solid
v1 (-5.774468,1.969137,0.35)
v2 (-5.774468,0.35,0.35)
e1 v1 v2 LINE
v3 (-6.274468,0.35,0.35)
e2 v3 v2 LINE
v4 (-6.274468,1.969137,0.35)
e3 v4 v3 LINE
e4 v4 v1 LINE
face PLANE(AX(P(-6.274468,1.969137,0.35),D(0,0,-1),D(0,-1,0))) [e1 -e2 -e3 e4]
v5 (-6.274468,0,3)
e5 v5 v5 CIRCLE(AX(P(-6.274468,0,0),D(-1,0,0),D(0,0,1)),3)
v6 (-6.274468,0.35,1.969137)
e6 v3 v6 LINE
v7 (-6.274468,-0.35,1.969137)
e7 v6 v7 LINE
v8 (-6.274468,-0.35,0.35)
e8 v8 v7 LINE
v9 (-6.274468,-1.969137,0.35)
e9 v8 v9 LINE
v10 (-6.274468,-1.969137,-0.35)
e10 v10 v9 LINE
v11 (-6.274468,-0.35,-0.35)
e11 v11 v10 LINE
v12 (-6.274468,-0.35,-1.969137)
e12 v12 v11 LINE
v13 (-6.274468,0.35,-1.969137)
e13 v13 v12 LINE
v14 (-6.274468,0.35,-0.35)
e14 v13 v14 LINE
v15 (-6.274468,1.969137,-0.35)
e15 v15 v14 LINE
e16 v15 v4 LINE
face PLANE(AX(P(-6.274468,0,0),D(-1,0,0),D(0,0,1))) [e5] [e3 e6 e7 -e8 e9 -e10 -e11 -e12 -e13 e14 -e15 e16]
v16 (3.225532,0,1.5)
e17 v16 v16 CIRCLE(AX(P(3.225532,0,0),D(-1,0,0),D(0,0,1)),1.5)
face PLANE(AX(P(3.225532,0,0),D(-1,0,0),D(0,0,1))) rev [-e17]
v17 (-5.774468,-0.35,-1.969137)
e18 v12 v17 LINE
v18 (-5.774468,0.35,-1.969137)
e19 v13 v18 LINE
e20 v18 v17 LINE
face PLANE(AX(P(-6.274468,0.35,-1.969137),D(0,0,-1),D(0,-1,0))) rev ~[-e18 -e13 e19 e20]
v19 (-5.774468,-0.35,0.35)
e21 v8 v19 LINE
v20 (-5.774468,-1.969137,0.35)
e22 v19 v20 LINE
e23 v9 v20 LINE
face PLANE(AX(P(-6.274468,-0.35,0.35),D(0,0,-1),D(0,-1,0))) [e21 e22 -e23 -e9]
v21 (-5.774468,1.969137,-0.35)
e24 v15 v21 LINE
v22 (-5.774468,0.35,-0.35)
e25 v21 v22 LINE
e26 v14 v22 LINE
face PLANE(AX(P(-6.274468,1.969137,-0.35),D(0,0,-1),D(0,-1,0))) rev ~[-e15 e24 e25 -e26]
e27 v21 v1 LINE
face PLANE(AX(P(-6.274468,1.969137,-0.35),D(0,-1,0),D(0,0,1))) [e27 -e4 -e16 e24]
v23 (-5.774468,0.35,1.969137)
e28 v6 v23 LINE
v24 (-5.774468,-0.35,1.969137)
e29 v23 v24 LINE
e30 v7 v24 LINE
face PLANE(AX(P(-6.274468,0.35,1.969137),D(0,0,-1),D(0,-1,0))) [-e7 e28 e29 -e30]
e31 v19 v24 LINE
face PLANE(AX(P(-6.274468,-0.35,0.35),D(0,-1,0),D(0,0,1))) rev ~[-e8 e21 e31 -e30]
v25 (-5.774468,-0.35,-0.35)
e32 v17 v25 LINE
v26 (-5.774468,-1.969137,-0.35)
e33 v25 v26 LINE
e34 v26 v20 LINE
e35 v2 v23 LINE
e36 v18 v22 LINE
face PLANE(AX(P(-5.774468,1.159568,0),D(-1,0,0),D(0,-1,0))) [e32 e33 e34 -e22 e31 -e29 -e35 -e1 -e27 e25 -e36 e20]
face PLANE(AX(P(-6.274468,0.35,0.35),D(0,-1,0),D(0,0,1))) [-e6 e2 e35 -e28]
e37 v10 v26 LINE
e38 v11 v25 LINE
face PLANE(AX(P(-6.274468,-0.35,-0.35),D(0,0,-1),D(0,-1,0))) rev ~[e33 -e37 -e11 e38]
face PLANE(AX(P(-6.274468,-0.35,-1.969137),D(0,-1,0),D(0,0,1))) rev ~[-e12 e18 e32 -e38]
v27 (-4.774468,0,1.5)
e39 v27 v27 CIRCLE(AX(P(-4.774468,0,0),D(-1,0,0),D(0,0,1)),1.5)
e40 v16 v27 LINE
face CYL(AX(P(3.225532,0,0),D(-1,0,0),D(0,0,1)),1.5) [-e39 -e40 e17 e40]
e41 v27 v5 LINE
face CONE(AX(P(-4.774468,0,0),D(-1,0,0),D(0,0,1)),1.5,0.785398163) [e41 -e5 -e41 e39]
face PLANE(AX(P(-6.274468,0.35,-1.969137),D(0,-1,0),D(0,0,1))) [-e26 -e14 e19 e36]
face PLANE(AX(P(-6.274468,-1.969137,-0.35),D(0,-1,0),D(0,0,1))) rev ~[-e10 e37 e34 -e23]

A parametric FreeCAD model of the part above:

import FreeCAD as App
import Part
import Sketcher
Q = App.Units.Quantity


def add_polygon(sketch, points):
    """Adds a closed chain of lines whose ends are joined by coincident constraints."""
    first, n = sketch.GeometryCount, len(points)
    for a, b in zip(points, points[1:] + points[:1]):
        sketch.addGeometry(Part.LineSegment(App.Vector(*a, 0), App.Vector(*b, 0)), False)
    for i in range(n):
        sketch.addConstraint(Sketcher.Constraint("Coincident", first + i, 2, first + (i + 1) % n, 1))

doc = App.newDocument("Part")
params = doc.addObject("Spreadsheet::Sheet", "Params")
for row, (alias, value) in enumerate([
    ("sketch1_width", "8 mm"),
    ("sketch1_height", "3 mm"),
    ("sketch1_width2", "9.5 mm"),
    ("revolution_angle", "360 deg"),
    ("sketch2_width", "0.7 mm"),
    ("pocket1_length", "0.5 mm"),
], start=1):
    params.set(f"A{row}", alias)
    params.set(f"B{row}", "=" + value)
    params.setAlias(f"B{row}", alias)

body = doc.addObject("PartDesign::Body", "Body")

sketch1 = body.newObject("Sketcher::SketchObject", "Sketch")
sketch1.AttachmentSupport = (doc.getObject("XZ_Plane"), [""])
sketch1.MapMode = "FlatFace"
add_polygon(sketch1, [(-6.274468, 3), (-6.274468, 0), (3.225532, 0), (3.225532, 1.5), (-4.774468, 1.5)])
sketch1.addConstraint([
    Sketcher.Constraint("Vertical", 0),
    Sketcher.Constraint("Horizontal", 1),
    Sketcher.Constraint("Vertical", 2),
    Sketcher.Constraint("Horizontal", 3),
    Sketcher.Constraint("PointOnObject", 0, 2, -1),
    Sketcher.Constraint("DistanceX", 3, 2, 3, 1, 8.0),
    Sketcher.Constraint("DistanceY", 0, 2, 0, 1, 3.0),
    Sketcher.Constraint("Angle", 4, Q("135 deg")),
    Sketcher.Constraint("DistanceX", 1, 1, 1, 2, 9.5),
    Sketcher.Constraint("DistanceX", 0, 2, -1, 1, 6.274468),
])
sketch1.setExpression("Constraints[10]", "Params.sketch1_width")
sketch1.setExpression("Constraints[11]", "Params.sketch1_height")
sketch1.setExpression("Constraints[13]", "Params.sketch1_width2")
revolution = body.newObject("PartDesign::Revolution", "Revolution")
revolution.Profile = sketch1
revolution.ReferenceAxis = (sketch1, ["H_Axis"])
revolution.setExpression("Angle", "Params.revolution_angle")

sketch2 = body.newObject("Sketcher::SketchObject", "Sketch001")
sketch2.AttachmentSupport = (doc.getObject("YZ_Plane"), [""])
sketch2.MapMode = "FlatFace"
sketch2.AttachmentOffset = App.Placement(App.Vector(0, 0, -6.274468), App.Rotation())
add_polygon(sketch2, [(1.969137, 0.35), (1.969137, -0.35), (0.35, -0.35), (0.35, -1.969137), (-0.35, -1.969137), (-0.35, -0.35), (-1.969137, -0.35), (-1.969137, 0.35), (-0.35, 0.35), (-0.35, 1.969137), (0.35, 1.969137), (0.35, 0.35)])
sketch2.addConstraint([
    Sketcher.Constraint("Vertical", 0),
    Sketcher.Constraint("Horizontal", 1),
    Sketcher.Constraint("Vertical", 2),
    Sketcher.Constraint("Horizontal", 3),
    Sketcher.Constraint("Vertical", 4),
    Sketcher.Constraint("Horizontal", 5),
    Sketcher.Constraint("Vertical", 6),
    Sketcher.Constraint("Horizontal", 7),
    Sketcher.Constraint("Vertical", 8),
    Sketcher.Constraint("Horizontal", 9),
    Sketcher.Constraint("Vertical", 10),
    Sketcher.Constraint("Horizontal", 11),
    Sketcher.Constraint("Symmetric", 0, 2, 6, 2, -1, 1),
    Sketcher.Constraint("Symmetric", 2, 2, 8, 2, -1, 1),
    Sketcher.Constraint("Symmetric", 4, 2, 10, 2, -1, 1),
    Sketcher.Constraint("Symmetric", 1, 2, 4, 2, -2),
    Sketcher.Constraint("Equal", 9, 0),
    Sketcher.Constraint("Equal", 11, 2),
    Sketcher.Constraint("DistanceX", 3, 2, 3, 1, 0.7),
    Sketcher.Constraint("DistanceX", 1, 2, 1, 1, 1.619137),
])
sketch2.setExpression("Constraints[30]", "Params.sketch2_width")
pocket1 = body.newObject("PartDesign::Pocket", "Pocket")
pocket1.Profile = sketch2
pocket1.setExpression("Length", "Params.pocket1_length")
pocket1.Reversed = True

doc.recompute()
